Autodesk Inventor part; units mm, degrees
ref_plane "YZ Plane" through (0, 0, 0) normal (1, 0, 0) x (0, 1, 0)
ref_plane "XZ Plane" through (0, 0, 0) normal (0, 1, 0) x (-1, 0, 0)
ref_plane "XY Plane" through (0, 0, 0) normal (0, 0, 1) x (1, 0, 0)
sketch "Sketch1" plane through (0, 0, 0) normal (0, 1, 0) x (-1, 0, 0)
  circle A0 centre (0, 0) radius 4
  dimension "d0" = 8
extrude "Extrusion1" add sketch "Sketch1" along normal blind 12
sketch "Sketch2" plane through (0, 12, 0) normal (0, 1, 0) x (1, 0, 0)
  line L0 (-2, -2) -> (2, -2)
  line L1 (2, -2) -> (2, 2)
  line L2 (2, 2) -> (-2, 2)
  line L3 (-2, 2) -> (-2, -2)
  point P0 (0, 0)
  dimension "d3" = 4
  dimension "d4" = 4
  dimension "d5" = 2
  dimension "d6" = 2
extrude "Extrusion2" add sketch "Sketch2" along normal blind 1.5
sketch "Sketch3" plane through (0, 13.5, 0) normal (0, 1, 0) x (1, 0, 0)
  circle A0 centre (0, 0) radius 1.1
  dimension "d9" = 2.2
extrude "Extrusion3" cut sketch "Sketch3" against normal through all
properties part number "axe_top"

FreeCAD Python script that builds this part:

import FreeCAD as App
import Part
import Sketcher
Q = App.Units.Quantity


def add_polygon(sketch, points):
    """Adds a closed chain of lines whose ends are joined by coincident constraints."""
    first, n = sketch.GeometryCount, len(points)
    for a, b in zip(points, points[1:] + points[:1]):
        sketch.addGeometry(Part.LineSegment(App.Vector(*a, 0), App.Vector(*b, 0)), False)
    for i in range(n):
        sketch.addConstraint(Sketcher.Constraint("Coincident", first + i, 2, first + (i + 1) % n, 1))

doc = App.newDocument("Part")
params = doc.addObject("Spreadsheet::Sheet", "Params")
for row, (alias, value) in enumerate([
    ("sketch1_diameter", "8 mm"),
    ("pad1_length", "12 mm"),
    ("sketch2_width", "4 mm"),
    ("pad2_length", "1.5 mm"),
    ("sketch3_diameter", "2.2 mm"),
], start=1):
    params.set(f"A{row}", alias)
    params.set(f"B{row}", "=" + value)
    params.setAlias(f"B{row}", alias)

body = doc.addObject("PartDesign::Body", "Body")

# Sketch on XZ plane
sketch1 = doc.addObject("Sketcher::SketchObject", "Sketch")
body.addObject(sketch1)
sketch1.AttachmentSupport = (doc.XZ_Plane, [""])
sketch1.MapMode = "FlatFace"
sketch1.addGeometry(Part.Circle(App.Vector(0, 0, 0), App.Vector(0, 0, 1), 4), False)
sketch1.addConstraint(Sketcher.Constraint("Coincident", 0, 3, -1, 1))
sketch1.addConstraint(Sketcher.Constraint("Diameter", 0, Q("8 mm")))
sketch1.setExpression("Constraints[1]", "Params.sketch1_diameter")
pad1 = doc.addObject("PartDesign::Pad", "Pad")
body.addObject(pad1)
pad1.Profile = sketch1
pad1.setExpression("Length", "Params.pad1_length")
pad1.Reversed = True

# Sketch on XZ plane
sketch2 = doc.addObject("Sketcher::SketchObject", "Sketch001")
body.addObject(sketch2)
sketch2.AttachmentSupport = (doc.XZ_Plane, [""])
sketch2.MapMode = "FlatFace"
sketch2.AttachmentOffset = App.Placement(App.Vector(0, 0, -12), App.Rotation())
add_polygon(sketch2, [(-2, -2), (-2, 2), (2, 2), (2, -2)])  # lines 0-3
sketch2.addConstraint(Sketcher.Constraint("Vertical", 0))
sketch2.addConstraint(Sketcher.Constraint("Horizontal", 1))
sketch2.addConstraint(Sketcher.Constraint("Vertical", 2))
sketch2.addConstraint(Sketcher.Constraint("Horizontal", 3))
sketch2.addConstraint(Sketcher.Constraint("Symmetric", 0, 2, 2, 2, -1, 1))
sketch2.addConstraint(Sketcher.Constraint("Equal", 3, 0))
sketch2.addConstraint(Sketcher.Constraint("DistanceX", 1, 1, 1, 2, Q("4 mm")))
sketch2.setExpression("Constraints[10]", "Params.sketch2_width")
pad2 = doc.addObject("PartDesign::Pad", "Pad001")
body.addObject(pad2)
pad2.Profile = sketch2
pad2.setExpression("Length", "Params.pad2_length")
pad2.Reversed = True

# Sketch on XZ plane
sketch3 = doc.addObject("Sketcher::SketchObject", "Sketch002")
body.addObject(sketch3)
sketch3.AttachmentSupport = (doc.XZ_Plane, [""])
sketch3.MapMode = "FlatFace"
sketch3.AttachmentOffset = App.Placement(App.Vector(0, 0, -13.5), App.Rotation())
sketch3.addGeometry(Part.Circle(App.Vector(0, 0, 0), App.Vector(0, 0, 1), 1.1), False)
sketch3.addConstraint(Sketcher.Constraint("Coincident", 0, 3, -1, 1))
sketch3.addConstraint(Sketcher.Constraint("Diameter", 0, Q("2.2 mm")))
sketch3.setExpression("Constraints[1]", "Params.sketch3_diameter")
pocket1 = doc.addObject("PartDesign::Pocket", "Pocket")
body.addObject(pocket1)
pocket1.Profile = sketch3
pocket1.Type = "ThroughAll"
pocket1.Reversed = True

doc.recompute()
